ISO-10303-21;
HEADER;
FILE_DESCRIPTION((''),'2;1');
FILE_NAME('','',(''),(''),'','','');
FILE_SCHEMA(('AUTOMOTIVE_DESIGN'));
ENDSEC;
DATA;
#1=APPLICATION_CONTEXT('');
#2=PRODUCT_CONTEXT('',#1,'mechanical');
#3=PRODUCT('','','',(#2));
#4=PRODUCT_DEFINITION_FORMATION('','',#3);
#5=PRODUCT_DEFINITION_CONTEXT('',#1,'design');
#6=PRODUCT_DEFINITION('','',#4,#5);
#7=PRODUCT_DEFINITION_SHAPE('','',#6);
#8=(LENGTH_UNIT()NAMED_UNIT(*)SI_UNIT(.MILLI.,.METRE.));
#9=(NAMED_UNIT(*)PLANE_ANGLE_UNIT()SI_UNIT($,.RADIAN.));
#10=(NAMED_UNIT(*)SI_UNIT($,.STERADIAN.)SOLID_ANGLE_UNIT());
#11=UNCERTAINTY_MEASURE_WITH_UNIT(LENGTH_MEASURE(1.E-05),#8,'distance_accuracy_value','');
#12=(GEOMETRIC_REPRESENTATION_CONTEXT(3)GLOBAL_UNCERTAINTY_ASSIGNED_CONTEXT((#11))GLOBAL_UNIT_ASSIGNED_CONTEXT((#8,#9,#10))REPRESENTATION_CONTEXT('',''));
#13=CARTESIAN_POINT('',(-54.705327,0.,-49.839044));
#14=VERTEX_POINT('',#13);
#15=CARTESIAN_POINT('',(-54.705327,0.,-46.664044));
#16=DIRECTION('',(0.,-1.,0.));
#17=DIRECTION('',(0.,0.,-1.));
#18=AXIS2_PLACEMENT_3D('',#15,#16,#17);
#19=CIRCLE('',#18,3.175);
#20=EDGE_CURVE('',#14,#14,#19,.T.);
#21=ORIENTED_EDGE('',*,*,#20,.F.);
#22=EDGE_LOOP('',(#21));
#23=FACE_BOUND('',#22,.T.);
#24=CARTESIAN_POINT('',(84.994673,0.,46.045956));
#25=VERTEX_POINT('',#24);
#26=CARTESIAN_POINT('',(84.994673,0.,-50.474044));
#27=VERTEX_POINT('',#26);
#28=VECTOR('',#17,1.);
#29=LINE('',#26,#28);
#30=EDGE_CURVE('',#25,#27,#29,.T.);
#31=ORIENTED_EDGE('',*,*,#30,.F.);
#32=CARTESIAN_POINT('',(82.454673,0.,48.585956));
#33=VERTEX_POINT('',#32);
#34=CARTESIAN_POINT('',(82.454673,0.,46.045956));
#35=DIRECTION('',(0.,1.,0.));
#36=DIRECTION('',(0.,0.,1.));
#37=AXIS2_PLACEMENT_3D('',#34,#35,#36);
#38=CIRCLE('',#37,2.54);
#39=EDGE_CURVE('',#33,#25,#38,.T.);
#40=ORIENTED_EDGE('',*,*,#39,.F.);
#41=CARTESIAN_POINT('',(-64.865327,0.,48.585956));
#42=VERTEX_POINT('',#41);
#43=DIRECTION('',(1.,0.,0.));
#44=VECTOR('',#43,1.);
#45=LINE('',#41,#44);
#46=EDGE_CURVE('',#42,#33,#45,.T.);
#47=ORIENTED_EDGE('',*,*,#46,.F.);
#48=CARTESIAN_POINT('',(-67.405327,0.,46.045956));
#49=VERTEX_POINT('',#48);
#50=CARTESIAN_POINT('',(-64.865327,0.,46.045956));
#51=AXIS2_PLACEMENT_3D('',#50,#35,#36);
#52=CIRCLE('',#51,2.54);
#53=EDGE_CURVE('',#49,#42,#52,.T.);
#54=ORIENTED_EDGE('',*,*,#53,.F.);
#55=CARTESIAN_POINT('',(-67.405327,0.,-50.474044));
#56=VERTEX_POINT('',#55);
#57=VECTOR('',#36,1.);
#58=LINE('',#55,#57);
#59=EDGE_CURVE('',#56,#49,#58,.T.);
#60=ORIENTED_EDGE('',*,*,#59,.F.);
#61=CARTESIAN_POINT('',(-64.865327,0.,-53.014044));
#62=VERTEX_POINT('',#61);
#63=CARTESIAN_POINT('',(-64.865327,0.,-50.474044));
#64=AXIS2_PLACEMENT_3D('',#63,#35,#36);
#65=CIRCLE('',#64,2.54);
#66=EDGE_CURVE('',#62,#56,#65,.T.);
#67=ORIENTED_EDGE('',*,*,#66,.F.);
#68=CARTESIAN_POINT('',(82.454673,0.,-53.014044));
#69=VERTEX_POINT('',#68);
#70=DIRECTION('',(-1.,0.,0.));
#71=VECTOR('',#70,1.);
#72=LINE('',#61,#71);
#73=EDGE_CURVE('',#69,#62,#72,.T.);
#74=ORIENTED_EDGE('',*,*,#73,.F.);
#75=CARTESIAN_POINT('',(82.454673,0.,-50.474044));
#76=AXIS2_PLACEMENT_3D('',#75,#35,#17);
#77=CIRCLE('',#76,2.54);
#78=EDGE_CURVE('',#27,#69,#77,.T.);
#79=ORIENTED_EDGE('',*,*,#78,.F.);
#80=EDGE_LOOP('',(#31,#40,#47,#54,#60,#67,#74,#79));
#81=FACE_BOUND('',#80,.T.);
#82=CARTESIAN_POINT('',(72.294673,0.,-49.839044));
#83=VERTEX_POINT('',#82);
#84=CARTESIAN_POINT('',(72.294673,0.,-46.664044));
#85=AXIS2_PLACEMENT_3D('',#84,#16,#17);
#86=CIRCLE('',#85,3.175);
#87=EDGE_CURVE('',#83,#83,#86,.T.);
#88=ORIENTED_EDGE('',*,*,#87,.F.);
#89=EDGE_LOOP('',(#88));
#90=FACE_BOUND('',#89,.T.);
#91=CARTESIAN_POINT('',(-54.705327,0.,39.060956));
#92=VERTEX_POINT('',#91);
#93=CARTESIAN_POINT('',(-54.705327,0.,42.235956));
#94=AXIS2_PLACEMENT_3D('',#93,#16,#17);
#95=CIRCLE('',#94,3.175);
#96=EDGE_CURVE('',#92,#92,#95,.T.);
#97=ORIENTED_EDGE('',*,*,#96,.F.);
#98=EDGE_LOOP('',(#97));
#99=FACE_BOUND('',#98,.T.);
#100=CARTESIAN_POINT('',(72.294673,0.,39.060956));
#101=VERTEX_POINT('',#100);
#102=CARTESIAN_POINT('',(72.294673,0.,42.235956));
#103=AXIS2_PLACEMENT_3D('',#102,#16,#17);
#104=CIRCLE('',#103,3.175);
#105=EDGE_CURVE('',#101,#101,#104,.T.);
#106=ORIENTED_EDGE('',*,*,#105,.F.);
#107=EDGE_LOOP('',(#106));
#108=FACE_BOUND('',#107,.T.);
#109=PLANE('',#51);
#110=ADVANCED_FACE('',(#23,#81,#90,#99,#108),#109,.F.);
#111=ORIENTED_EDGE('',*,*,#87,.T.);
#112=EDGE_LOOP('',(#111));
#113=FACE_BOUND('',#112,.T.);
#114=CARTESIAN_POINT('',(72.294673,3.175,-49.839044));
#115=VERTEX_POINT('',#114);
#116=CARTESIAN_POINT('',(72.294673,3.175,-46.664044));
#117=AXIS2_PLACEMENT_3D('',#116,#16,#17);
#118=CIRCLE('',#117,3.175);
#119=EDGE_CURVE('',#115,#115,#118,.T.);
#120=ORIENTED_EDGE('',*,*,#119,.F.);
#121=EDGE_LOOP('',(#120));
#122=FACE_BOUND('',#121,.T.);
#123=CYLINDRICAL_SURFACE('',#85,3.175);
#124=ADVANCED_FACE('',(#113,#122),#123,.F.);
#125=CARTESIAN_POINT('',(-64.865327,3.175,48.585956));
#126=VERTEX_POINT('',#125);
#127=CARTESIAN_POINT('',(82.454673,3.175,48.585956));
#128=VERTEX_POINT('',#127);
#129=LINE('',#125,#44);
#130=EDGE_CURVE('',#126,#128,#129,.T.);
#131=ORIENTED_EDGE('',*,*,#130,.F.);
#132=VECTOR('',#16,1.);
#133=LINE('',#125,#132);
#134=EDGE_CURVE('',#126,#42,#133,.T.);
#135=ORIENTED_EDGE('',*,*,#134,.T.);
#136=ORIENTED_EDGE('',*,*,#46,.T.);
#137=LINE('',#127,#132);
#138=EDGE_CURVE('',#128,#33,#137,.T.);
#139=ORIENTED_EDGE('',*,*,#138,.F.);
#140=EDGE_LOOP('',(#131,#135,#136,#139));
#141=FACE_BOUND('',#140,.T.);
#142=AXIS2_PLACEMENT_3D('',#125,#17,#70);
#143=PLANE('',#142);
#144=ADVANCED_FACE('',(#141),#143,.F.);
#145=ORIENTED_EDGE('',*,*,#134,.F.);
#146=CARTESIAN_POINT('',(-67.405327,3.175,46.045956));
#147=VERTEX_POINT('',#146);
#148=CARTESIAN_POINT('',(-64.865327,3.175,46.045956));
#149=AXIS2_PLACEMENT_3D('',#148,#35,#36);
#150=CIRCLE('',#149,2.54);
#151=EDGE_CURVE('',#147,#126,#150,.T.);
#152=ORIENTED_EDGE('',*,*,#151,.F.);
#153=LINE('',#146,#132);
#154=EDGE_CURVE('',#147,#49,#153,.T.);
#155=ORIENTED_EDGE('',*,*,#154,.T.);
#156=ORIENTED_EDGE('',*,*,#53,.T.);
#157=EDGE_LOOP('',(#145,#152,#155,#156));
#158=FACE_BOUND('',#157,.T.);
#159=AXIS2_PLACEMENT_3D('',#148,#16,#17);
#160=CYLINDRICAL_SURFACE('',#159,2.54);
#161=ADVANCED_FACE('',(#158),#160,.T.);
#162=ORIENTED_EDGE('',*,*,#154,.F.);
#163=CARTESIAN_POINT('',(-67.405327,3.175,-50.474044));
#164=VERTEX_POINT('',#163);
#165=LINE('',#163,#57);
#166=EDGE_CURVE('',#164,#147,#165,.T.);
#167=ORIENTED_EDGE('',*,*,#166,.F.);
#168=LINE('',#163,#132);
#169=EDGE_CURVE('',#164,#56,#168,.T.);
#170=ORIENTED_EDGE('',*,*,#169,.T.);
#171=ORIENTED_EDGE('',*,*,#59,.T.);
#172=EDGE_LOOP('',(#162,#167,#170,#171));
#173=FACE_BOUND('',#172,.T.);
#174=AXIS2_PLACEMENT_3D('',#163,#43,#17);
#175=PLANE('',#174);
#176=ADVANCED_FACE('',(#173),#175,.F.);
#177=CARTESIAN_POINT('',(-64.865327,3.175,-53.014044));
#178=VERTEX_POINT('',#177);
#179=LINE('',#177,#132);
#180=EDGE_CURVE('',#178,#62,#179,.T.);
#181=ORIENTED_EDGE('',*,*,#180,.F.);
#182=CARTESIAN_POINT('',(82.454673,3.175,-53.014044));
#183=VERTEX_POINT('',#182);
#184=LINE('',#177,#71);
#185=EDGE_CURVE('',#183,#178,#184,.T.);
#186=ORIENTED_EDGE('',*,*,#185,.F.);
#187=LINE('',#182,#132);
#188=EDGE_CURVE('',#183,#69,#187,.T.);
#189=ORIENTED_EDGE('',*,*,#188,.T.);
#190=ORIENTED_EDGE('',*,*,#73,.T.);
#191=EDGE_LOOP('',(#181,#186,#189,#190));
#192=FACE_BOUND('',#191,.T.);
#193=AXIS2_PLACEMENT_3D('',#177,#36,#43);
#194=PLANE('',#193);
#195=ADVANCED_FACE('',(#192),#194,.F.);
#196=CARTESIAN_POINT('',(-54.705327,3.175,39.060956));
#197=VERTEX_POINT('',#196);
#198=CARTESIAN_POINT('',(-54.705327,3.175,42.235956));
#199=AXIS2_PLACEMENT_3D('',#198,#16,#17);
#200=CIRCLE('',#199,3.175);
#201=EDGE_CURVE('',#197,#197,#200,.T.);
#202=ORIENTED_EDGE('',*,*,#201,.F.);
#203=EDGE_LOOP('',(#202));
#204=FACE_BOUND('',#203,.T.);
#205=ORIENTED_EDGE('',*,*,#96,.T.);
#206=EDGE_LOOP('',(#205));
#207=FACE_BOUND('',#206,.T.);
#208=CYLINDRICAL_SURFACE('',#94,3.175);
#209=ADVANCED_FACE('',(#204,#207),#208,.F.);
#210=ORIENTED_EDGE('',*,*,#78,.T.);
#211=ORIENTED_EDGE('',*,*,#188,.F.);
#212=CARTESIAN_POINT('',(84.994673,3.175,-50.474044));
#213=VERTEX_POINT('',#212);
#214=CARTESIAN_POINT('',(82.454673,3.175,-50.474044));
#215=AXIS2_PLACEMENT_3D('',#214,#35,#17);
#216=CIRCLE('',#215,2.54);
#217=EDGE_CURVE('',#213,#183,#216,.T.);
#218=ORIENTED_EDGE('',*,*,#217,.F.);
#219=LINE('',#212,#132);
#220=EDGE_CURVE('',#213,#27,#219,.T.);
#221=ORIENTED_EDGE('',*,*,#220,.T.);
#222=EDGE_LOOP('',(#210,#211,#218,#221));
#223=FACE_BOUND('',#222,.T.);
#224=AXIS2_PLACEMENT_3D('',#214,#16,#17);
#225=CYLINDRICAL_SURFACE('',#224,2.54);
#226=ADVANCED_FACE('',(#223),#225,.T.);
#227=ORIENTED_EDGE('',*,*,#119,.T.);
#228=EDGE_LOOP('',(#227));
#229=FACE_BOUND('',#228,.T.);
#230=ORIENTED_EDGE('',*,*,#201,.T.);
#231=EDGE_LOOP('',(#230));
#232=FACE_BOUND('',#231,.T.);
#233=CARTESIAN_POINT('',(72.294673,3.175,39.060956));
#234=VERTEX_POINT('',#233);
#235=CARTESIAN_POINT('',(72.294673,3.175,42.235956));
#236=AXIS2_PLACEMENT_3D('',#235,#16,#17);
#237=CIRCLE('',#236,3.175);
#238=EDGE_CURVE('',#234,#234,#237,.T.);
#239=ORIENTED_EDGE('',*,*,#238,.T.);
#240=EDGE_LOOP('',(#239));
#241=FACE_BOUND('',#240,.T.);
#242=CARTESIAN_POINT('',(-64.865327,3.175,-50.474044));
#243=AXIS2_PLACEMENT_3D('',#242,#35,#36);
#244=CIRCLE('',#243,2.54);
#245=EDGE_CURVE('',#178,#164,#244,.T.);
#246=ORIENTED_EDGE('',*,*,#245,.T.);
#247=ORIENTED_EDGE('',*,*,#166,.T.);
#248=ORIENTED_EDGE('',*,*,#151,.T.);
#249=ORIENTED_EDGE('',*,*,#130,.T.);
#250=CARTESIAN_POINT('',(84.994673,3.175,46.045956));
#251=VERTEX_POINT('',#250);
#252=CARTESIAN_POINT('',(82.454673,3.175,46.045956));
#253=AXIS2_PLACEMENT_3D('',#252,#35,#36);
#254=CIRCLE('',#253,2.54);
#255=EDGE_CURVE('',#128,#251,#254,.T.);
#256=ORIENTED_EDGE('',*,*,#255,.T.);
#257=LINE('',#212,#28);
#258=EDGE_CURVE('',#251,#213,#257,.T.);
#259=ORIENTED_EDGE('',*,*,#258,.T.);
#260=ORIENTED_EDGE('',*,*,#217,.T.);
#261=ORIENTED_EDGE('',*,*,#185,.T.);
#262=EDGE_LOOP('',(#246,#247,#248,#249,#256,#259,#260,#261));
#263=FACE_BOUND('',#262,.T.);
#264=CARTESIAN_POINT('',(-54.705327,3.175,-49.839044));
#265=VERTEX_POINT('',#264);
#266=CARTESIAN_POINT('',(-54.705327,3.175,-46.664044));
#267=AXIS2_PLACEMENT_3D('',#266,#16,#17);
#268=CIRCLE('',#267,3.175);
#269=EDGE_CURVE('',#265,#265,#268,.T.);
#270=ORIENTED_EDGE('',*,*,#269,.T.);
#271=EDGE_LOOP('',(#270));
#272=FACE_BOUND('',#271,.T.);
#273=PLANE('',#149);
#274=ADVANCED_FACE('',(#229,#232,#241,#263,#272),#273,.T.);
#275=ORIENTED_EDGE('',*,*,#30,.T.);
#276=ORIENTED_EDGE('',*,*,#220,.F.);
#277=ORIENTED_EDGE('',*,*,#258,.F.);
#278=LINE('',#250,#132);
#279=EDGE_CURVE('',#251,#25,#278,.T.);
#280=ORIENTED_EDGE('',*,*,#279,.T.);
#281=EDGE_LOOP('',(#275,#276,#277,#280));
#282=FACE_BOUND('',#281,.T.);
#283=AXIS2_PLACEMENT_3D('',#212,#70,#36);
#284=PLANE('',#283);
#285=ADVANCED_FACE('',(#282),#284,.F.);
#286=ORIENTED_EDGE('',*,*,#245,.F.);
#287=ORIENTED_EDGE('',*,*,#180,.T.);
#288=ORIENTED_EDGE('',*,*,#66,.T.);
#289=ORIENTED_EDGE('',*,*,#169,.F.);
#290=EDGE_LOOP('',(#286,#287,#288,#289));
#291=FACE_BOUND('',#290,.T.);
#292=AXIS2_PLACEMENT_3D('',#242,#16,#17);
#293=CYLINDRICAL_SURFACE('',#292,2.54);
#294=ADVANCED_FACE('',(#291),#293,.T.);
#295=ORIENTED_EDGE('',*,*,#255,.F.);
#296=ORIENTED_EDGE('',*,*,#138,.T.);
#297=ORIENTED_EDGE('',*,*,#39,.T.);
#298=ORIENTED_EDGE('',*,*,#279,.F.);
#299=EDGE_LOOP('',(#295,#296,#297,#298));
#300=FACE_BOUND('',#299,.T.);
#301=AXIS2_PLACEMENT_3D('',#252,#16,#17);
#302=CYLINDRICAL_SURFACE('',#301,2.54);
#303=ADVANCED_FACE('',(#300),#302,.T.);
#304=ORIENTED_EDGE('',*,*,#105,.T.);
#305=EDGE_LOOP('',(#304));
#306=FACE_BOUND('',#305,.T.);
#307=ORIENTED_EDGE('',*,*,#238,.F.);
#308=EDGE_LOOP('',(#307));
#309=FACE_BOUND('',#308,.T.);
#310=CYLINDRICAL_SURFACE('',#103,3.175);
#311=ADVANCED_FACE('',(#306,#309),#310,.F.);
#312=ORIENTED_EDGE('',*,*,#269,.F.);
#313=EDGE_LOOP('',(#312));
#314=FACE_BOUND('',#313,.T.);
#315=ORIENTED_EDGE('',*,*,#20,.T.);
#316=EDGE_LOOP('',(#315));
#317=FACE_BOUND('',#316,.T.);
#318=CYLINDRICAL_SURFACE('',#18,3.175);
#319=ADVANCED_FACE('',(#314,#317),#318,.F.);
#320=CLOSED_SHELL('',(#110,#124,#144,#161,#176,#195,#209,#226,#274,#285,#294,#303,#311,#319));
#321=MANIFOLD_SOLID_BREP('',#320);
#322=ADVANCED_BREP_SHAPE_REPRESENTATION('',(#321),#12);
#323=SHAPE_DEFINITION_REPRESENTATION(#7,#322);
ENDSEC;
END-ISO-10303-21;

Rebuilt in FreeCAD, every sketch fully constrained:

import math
import FreeCAD as App
import Part
import Sketcher
Q = App.Units.Quantity

doc = App.newDocument("Part")
params = doc.addObject("Spreadsheet::Sheet", "Params")
for row, (alias, value) in enumerate([
    ("sketch1_radius", "0.1 in"),
    ("sketch1_width", "5.8 in"),
    ("sketch1_height", "3.8 in"),
    ("pad1_length", "0.125 in"),
    ("sketch2_diameter", "0.25 in"),
    ("hole_diameter", "0.25 in"),
], start=1):
    params.set(f"A{row}", alias)
    params.set(f"B{row}", "=" + value)
    params.setAlias(f"B{row}", alias)

body = doc.addObject("PartDesign::Body", "Body")

# Sketch on XZ plane
sketch1 = body.newObject("Sketcher::SketchObject", "Sketch")
sketch1.AttachmentSupport = (doc.getObject("XZ_Plane"), [""])
sketch1.MapMode = "FlatFace"
sketch1.addGeometry(Part.LineSegment(App.Vector(82.5, -53, 0), App.Vector(-64.9, -53, 0)), False)
sketch1.addGeometry(Part.ArcOfCircle(Part.Circle(App.Vector(-64.9, -50.5, 0), App.Vector(0, 0, 1), 2.5), math.radians(-180), math.radians(-90)), False)
sketch1.addGeometry(Part.LineSegment(App.Vector(-67.4, -50.5, 0), App.Vector(-67.4, 46, 0)), False)
sketch1.addGeometry(Part.ArcOfCircle(Part.Circle(App.Vector(-64.9, 46, 0), App.Vector(0, 0, 1), 2.5), math.radians(90), math.radians(180)), False)
sketch1.addGeometry(Part.LineSegment(App.Vector(-64.9, 48.6, 0), App.Vector(82.5, 48.6, 0)), False)
sketch1.addGeometry(Part.ArcOfCircle(Part.Circle(App.Vector(82.5, 46, 0), App.Vector(0, 0, 1), 2.5), math.radians(0), math.radians(90)), False)
sketch1.addGeometry(Part.LineSegment(App.Vector(85, 46, 0), App.Vector(85, -50.5, 0)), False)
sketch1.addGeometry(Part.ArcOfCircle(Part.Circle(App.Vector(82.5, -50.5, 0), App.Vector(0, 0, 1), 2.5), math.radians(-90), math.radians(0)), False)
sketch1.addConstraint(Sketcher.Constraint("Tangent", 0, 2, 1, 2))
sketch1.addConstraint(Sketcher.Constraint("Tangent", 1, 1, 2, 1))
sketch1.addConstraint(Sketcher.Constraint("Tangent", 2, 2, 3, 2))
sketch1.addConstraint(Sketcher.Constraint("Tangent", 3, 1, 4, 1))
sketch1.addConstraint(Sketcher.Constraint("Tangent", 4, 2, 5, 2))
sketch1.addConstraint(Sketcher.Constraint("Tangent", 5, 1, 6, 1))
sketch1.addConstraint(Sketcher.Constraint("Tangent", 6, 2, 7, 2))
sketch1.addConstraint(Sketcher.Constraint("Tangent", 7, 1, 0, 1))
sketch1.addConstraint(Sketcher.Constraint("Horizontal", 0))
sketch1.addConstraint(Sketcher.Constraint("Vertical", 2))
sketch1.addConstraint(Sketcher.Constraint("Horizontal", 4))
sketch1.addConstraint(Sketcher.Constraint("Vertical", 6))
sketch1.addConstraint(Sketcher.Constraint("Equal", 1, 3))
sketch1.addConstraint(Sketcher.Constraint("Equal", 3, 5))
sketch1.addConstraint(Sketcher.Constraint("Equal", 5, 7))
sketch1.addConstraint(Sketcher.Constraint("Radius", 1, Q("0.1 in")))
sketch1.addConstraint(Sketcher.Constraint("DistanceX", 0, 2, 0, 1, Q("5.8 in")))
sketch1.addConstraint(Sketcher.Constraint("DistanceY", 2, 1, 2, 2, Q("3.8 in")))
sketch1.addConstraint(Sketcher.Constraint("DistanceX", 1, 3, -1, 1, Q("64.865327 mm")))
sketch1.addConstraint(Sketcher.Constraint("DistanceY", 1, 3, -1, 1, Q("50.474044 mm")))
sketch1.setExpression("Constraints[15]", "Params.sketch1_radius")
sketch1.setExpression("Constraints[16]", "Params.sketch1_width")
sketch1.setExpression("Constraints[17]", "Params.sketch1_height")
pad1 = body.newObject("PartDesign::Pad", "Pad")
pad1.Profile = sketch1
pad1.setExpression("Length", "Params.pad1_length")
pad1.Reversed = True

# Sketch on XZ plane
sketch2 = body.newObject("Sketcher::SketchObject", "Sketch001")
sketch2.AttachmentSupport = (doc.getObject("XZ_Plane"), [""])
sketch2.MapMode = "FlatFace"
sketch2.addGeometry(Part.Circle(App.Vector(72.3, -46.7, 0), App.Vector(0, 0, 1), 3.2), False)
sketch2.addGeometry(Part.Circle(App.Vector(72.3, 42.2, 0), App.Vector(0, 0, 1), 3.2), False)
sketch2.addGeometry(Part.Circle(App.Vector(-54.7, 42.2, 0), App.Vector(0, 0, 1), 3.2), False)
sketch2.addGeometry(Part.Circle(App.Vector(-54.7, -46.7, 0), App.Vector(0, 0, 1), 3.2), False)
sketch2.addConstraint(Sketcher.Constraint("Equal", 0, 1))
sketch2.addConstraint(Sketcher.Constraint("Equal", 1, 2))
sketch2.addConstraint(Sketcher.Constraint("Equal", 2, 3))
sketch2.addConstraint(Sketcher.Constraint("Horizontal", 1, 3, 2, 3))
sketch2.addConstraint(Sketcher.Constraint("Horizontal", 0, 3, 3, 3))
sketch2.addConstraint(Sketcher.Constraint("Vertical", 0, 3, 1, 3))
sketch2.addConstraint(Sketcher.Constraint("Vertical", 2, 3, 3, 3))
sketch2.addConstraint(Sketcher.Constraint("Diameter", 0, Q("0.25 in")))
sketch2.addConstraint(Sketcher.Constraint("DistanceX", 2, 3, 1, 3, Q("5 in")))
sketch2.addConstraint(Sketcher.Constraint("DistanceY", 0, 3, 1, 3, Q("3.5 in")))
sketch2.addConstraint(Sketcher.Constraint("DistanceX", -1, 1, 0, 3, Q("72.294673 mm")))
sketch2.addConstraint(Sketcher.Constraint("DistanceY", 0, 3, -1, 1, Q("46.664044 mm")))
sketch2.setExpression("Constraints[7]", "Params.sketch2_diameter")
doc.recompute()
hole = body.newObject("PartDesign::Hole", "Hole")
hole.Profile = sketch2
hole.ThreadType = "None"
hole.setExpression("Diameter", "Params.hole_diameter")
hole.DepthType = "ThroughAll"

doc.recompute()
